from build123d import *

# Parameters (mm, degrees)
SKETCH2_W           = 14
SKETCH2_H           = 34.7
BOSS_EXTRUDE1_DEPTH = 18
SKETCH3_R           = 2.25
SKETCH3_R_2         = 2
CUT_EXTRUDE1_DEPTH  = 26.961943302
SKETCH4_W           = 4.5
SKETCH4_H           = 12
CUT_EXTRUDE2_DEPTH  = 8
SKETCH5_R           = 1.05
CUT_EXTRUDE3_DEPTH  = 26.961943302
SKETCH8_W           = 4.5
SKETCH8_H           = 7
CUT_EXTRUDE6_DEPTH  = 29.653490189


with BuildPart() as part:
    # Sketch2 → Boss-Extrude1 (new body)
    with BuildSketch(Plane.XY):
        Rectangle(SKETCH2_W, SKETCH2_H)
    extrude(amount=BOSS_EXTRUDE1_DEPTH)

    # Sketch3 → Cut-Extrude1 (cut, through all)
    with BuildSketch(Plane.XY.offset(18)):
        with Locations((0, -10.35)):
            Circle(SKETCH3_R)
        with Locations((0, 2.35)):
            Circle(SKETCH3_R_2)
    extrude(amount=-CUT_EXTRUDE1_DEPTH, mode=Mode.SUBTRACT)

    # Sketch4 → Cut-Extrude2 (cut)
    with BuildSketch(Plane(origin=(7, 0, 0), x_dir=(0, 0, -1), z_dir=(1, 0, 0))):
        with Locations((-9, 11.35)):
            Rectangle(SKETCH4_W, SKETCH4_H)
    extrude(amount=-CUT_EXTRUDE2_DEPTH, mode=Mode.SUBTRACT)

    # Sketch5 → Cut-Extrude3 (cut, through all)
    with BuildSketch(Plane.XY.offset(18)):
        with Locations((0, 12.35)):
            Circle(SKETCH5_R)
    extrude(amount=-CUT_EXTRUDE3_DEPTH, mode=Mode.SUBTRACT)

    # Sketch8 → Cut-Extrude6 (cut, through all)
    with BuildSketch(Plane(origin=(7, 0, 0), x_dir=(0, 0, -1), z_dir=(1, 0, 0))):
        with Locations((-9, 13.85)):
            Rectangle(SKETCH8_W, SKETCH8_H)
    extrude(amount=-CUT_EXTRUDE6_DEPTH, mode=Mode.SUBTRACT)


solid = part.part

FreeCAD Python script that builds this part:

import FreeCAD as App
import Part
import Sketcher

V = App.Vector
Q = App.Units.Quantity

doc = App.newDocument("Part")
body = doc.addObject("PartDesign::Body", "Body")

# Sketch on XY plane
sketch1 = body.newObject("Sketcher::SketchObject", "Sketch")
sketch1.AttachmentSupport = (doc.getObject("XY_Plane"), [""])
sketch1.MapMode = "FlatFace"
sketch1.addGeometry(Part.LineSegment(V(-7, 17, 0), V(-7, -17, 0)), False)
sketch1.addGeometry(Part.LineSegment(V(-7, -17, 0), V(7, -17, 0)), False)
sketch1.addGeometry(Part.LineSegment(V(7, -17, 0), V(7, 17, 0)), False)
sketch1.addGeometry(Part.LineSegment(V(7, 17, 0), V(-7, 17, 0)), False)
sketch1.addConstraint(Sketcher.Constraint("Coincident", 0, 2, 1, 1))
sketch1.addConstraint(Sketcher.Constraint("Coincident", 1, 2, 2, 1))
sketch1.addConstraint(Sketcher.Constraint("Coincident", 2, 2, 3, 1))
sketch1.addConstraint(Sketcher.Constraint("Coincident", 3, 2, 0, 1))
sketch1.addConstraint(Sketcher.Constraint("Vertical", 0))
sketch1.addConstraint(Sketcher.Constraint("Horizontal", 1))
sketch1.addConstraint(Sketcher.Constraint("Vertical", 2))
sketch1.addConstraint(Sketcher.Constraint("Horizontal", 3))
sketch1.addConstraint(Sketcher.Constraint("Symmetric", 0, 2, 2, 2, -1, 1))
sketch1.addConstraint(Sketcher.Constraint("DistanceX", 1, 1, 1, 2, Q("14 mm")))
sketch1.addConstraint(Sketcher.Constraint("DistanceY", 0, 2, 0, 1, Q("34.7 mm")))
pad1 = body.newObject("PartDesign::Pad", "Pad")
pad1.Profile = sketch1
pad1.Length = 18

# Sketch on XY plane
sketch2 = body.newObject("Sketcher::SketchObject", "Sketch001")
sketch2.AttachmentSupport = (doc.getObject("XY_Plane"), [""])
sketch2.MapMode = "FlatFace"
sketch2.AttachmentOffset = App.Placement(V(0, 0, 18), App.Rotation())
sketch2.addGeometry(Part.Circle(V(0, -10.3, 0), V(0, 0, 1), 2.2), False)
sketch2.addGeometry(Part.Circle(V(0, 2.4, 0), V(0, 0, 1), 2), False)
sketch2.addConstraint(Sketcher.Constraint("PointOnObject", 0, 3, -2))
sketch2.addConstraint(Sketcher.Constraint("PointOnObject", 1, 3, -2))
sketch2.addConstraint(Sketcher.Constraint("Diameter", 1, Q("4 mm")))
sketch2.addConstraint(Sketcher.Constraint("Diameter", 0, Q("4.5 mm")))
sketch2.addConstraint(Sketcher.Constraint("DistanceY", 0, 3, 1, 3, Q("12.7 mm")))
sketch2.addConstraint(Sketcher.Constraint("DistanceY", 0, 3, -1, 1, Q("10.35 mm")))
pocket1 = body.newObject("PartDesign::Pocket", "Pocket")
pocket1.Profile = sketch2
pocket1.Type = "ThroughAll"

# Sketch on YZ plane
sketch3 = body.newObject("Sketcher::SketchObject", "Sketch002")
sketch3.AttachmentSupport = (doc.getObject("YZ_Plane"), [""])
sketch3.MapMode = "FlatFace"
sketch3.AttachmentOffset = App.Placement(V(0, 0, 7), App.Rotation())
sketch3.addGeometry(Part.LineSegment(V(17.4, 11.2, 0), V(5.3, 11.2, 0)), False)
sketch3.addGeometry(Part.LineSegment(V(5.3, 11.2, 0), V(5.3, 6.8, 0)), False)
sketch3.addGeometry(Part.LineSegment(V(5.3, 6.8, 0), V(17.4, 6.8, 0)), False)
sketch3.addGeometry(Part.LineSegment(V(17.4, 6.8, 0), V(17.4, 11.2, 0)), False)
sketch3.addConstraint(Sketcher.Constraint("Coincident", 0, 2, 1, 1))
sketch3.addConstraint(Sketcher.Constraint("Coincident", 1, 2, 2, 1))
sketch3.addConstraint(Sketcher.Constraint("Coincident", 2, 2, 3, 1))
sketch3.addConstraint(Sketcher.Constraint("Coincident", 3, 2, 0, 1))
sketch3.addConstraint(Sketcher.Constraint("Horizontal", 0))
sketch3.addConstraint(Sketcher.Constraint("Vertical", 1))
sketch3.addConstraint(Sketcher.Constraint("Horizontal", 2))
sketch3.addConstraint(Sketcher.Constraint("Vertical", 3))
sketch3.addConstraint(Sketcher.Constraint("DistanceX", 0, 2, 0, 1, Q("12 mm")))
sketch3.addConstraint(Sketcher.Constraint("DistanceY", 1, 2, 1, 1, Q("4.5 mm")))
sketch3.addConstraint(Sketcher.Constraint("DistanceX", -1, 1, 0, 2, Q("5.35 mm")))
sketch3.addConstraint(Sketcher.Constraint("DistanceY", -1, 1, 0, 2, Q("11.25 mm")))
pocket2 = body.newObject("PartDesign::Pocket", "Pocket001")
pocket2.Profile = sketch3
pocket2.Length = 8

# Sketch on XY plane
sketch4 = body.newObject("Sketcher::SketchObject", "Sketch003")
sketch4.AttachmentSupport = (doc.getObject("XY_Plane"), [""])
sketch4.MapMode = "FlatFace"
sketch4.AttachmentOffset = App.Placement(V(0, 0, 18), App.Rotation())
sketch4.addGeometry(Part.Circle(V(0, 12.3, 0), V(0, 0, 1), 1.1), False)
sketch4.addConstraint(Sketcher.Constraint("PointOnObject", 0, 3, -2))
sketch4.addConstraint(Sketcher.Constraint("Diameter", 0, Q("2.1 mm")))
sketch4.addConstraint(Sketcher.Constraint("DistanceY", -1, 1, 0, 3, Q("12.35 mm")))
pocket3 = body.newObject("PartDesign::Pocket", "Pocket002")
pocket3.Profile = sketch4
pocket3.Type = "ThroughAll"

# Sketch on YZ plane
sketch5 = body.newObject("Sketcher::SketchObject", "Sketch004")
sketch5.AttachmentSupport = (doc.getObject("YZ_Plane"), [""])
sketch5.MapMode = "FlatFace"
sketch5.AttachmentOffset = App.Placement(V(0, 0, 7), App.Rotation())
sketch5.addGeometry(Part.LineSegment(V(17.4, 11.2, 0), V(10.3, 11.2, 0)), False)
sketch5.addGeometry(Part.LineSegment(V(10.3, 11.2, 0), V(10.3, 6.8, 0)), False)
sketch5.addGeometry(Part.LineSegment(V(10.3, 6.8, 0), V(17.4, 6.8, 0)), False)
sketch5.addGeometry(Part.LineSegment(V(17.4, 6.8, 0), V(17.4, 11.2, 0)), False)
sketch5.addConstraint(Sketcher.Constraint("Coincident", 0, 2, 1, 1))
sketch5.addConstraint(Sketcher.Constraint("Coincident", 1, 2, 2, 1))
sketch5.addConstraint(Sketcher.Constraint("Coincident", 2, 2, 3, 1))
sketch5.addConstraint(Sketcher.Constraint("Coincident", 3, 2, 0, 1))
sketch5.addConstraint(Sketcher.Constraint("Horizontal", 0))
sketch5.addConstraint(Sketcher.Constraint("Vertical", 1))
sketch5.addConstraint(Sketcher.Constraint("Horizontal", 2))
sketch5.addConstraint(Sketcher.Constraint("Vertical", 3))
sketch5.addConstraint(Sketcher.Constraint("DistanceX", 0, 2, 0, 1, Q("7 mm")))
sketch5.addConstraint(Sketcher.Constraint("DistanceY", 1, 2, 1, 1, Q("4.5 mm")))
sketch5.addConstraint(Sketcher.Constraint("DistanceX", -1, 1, 0, 2, Q("10.35 mm")))
sketch5.addConstraint(Sketcher.Constraint("DistanceY", -1, 1, 0, 2, Q("11.25 mm")))
pocket4 = body.newObject("PartDesign::Pocket", "Pocket003")
pocket4.Profile = sketch5
pocket4.Type = "ThroughAll"

doc.recompute()
